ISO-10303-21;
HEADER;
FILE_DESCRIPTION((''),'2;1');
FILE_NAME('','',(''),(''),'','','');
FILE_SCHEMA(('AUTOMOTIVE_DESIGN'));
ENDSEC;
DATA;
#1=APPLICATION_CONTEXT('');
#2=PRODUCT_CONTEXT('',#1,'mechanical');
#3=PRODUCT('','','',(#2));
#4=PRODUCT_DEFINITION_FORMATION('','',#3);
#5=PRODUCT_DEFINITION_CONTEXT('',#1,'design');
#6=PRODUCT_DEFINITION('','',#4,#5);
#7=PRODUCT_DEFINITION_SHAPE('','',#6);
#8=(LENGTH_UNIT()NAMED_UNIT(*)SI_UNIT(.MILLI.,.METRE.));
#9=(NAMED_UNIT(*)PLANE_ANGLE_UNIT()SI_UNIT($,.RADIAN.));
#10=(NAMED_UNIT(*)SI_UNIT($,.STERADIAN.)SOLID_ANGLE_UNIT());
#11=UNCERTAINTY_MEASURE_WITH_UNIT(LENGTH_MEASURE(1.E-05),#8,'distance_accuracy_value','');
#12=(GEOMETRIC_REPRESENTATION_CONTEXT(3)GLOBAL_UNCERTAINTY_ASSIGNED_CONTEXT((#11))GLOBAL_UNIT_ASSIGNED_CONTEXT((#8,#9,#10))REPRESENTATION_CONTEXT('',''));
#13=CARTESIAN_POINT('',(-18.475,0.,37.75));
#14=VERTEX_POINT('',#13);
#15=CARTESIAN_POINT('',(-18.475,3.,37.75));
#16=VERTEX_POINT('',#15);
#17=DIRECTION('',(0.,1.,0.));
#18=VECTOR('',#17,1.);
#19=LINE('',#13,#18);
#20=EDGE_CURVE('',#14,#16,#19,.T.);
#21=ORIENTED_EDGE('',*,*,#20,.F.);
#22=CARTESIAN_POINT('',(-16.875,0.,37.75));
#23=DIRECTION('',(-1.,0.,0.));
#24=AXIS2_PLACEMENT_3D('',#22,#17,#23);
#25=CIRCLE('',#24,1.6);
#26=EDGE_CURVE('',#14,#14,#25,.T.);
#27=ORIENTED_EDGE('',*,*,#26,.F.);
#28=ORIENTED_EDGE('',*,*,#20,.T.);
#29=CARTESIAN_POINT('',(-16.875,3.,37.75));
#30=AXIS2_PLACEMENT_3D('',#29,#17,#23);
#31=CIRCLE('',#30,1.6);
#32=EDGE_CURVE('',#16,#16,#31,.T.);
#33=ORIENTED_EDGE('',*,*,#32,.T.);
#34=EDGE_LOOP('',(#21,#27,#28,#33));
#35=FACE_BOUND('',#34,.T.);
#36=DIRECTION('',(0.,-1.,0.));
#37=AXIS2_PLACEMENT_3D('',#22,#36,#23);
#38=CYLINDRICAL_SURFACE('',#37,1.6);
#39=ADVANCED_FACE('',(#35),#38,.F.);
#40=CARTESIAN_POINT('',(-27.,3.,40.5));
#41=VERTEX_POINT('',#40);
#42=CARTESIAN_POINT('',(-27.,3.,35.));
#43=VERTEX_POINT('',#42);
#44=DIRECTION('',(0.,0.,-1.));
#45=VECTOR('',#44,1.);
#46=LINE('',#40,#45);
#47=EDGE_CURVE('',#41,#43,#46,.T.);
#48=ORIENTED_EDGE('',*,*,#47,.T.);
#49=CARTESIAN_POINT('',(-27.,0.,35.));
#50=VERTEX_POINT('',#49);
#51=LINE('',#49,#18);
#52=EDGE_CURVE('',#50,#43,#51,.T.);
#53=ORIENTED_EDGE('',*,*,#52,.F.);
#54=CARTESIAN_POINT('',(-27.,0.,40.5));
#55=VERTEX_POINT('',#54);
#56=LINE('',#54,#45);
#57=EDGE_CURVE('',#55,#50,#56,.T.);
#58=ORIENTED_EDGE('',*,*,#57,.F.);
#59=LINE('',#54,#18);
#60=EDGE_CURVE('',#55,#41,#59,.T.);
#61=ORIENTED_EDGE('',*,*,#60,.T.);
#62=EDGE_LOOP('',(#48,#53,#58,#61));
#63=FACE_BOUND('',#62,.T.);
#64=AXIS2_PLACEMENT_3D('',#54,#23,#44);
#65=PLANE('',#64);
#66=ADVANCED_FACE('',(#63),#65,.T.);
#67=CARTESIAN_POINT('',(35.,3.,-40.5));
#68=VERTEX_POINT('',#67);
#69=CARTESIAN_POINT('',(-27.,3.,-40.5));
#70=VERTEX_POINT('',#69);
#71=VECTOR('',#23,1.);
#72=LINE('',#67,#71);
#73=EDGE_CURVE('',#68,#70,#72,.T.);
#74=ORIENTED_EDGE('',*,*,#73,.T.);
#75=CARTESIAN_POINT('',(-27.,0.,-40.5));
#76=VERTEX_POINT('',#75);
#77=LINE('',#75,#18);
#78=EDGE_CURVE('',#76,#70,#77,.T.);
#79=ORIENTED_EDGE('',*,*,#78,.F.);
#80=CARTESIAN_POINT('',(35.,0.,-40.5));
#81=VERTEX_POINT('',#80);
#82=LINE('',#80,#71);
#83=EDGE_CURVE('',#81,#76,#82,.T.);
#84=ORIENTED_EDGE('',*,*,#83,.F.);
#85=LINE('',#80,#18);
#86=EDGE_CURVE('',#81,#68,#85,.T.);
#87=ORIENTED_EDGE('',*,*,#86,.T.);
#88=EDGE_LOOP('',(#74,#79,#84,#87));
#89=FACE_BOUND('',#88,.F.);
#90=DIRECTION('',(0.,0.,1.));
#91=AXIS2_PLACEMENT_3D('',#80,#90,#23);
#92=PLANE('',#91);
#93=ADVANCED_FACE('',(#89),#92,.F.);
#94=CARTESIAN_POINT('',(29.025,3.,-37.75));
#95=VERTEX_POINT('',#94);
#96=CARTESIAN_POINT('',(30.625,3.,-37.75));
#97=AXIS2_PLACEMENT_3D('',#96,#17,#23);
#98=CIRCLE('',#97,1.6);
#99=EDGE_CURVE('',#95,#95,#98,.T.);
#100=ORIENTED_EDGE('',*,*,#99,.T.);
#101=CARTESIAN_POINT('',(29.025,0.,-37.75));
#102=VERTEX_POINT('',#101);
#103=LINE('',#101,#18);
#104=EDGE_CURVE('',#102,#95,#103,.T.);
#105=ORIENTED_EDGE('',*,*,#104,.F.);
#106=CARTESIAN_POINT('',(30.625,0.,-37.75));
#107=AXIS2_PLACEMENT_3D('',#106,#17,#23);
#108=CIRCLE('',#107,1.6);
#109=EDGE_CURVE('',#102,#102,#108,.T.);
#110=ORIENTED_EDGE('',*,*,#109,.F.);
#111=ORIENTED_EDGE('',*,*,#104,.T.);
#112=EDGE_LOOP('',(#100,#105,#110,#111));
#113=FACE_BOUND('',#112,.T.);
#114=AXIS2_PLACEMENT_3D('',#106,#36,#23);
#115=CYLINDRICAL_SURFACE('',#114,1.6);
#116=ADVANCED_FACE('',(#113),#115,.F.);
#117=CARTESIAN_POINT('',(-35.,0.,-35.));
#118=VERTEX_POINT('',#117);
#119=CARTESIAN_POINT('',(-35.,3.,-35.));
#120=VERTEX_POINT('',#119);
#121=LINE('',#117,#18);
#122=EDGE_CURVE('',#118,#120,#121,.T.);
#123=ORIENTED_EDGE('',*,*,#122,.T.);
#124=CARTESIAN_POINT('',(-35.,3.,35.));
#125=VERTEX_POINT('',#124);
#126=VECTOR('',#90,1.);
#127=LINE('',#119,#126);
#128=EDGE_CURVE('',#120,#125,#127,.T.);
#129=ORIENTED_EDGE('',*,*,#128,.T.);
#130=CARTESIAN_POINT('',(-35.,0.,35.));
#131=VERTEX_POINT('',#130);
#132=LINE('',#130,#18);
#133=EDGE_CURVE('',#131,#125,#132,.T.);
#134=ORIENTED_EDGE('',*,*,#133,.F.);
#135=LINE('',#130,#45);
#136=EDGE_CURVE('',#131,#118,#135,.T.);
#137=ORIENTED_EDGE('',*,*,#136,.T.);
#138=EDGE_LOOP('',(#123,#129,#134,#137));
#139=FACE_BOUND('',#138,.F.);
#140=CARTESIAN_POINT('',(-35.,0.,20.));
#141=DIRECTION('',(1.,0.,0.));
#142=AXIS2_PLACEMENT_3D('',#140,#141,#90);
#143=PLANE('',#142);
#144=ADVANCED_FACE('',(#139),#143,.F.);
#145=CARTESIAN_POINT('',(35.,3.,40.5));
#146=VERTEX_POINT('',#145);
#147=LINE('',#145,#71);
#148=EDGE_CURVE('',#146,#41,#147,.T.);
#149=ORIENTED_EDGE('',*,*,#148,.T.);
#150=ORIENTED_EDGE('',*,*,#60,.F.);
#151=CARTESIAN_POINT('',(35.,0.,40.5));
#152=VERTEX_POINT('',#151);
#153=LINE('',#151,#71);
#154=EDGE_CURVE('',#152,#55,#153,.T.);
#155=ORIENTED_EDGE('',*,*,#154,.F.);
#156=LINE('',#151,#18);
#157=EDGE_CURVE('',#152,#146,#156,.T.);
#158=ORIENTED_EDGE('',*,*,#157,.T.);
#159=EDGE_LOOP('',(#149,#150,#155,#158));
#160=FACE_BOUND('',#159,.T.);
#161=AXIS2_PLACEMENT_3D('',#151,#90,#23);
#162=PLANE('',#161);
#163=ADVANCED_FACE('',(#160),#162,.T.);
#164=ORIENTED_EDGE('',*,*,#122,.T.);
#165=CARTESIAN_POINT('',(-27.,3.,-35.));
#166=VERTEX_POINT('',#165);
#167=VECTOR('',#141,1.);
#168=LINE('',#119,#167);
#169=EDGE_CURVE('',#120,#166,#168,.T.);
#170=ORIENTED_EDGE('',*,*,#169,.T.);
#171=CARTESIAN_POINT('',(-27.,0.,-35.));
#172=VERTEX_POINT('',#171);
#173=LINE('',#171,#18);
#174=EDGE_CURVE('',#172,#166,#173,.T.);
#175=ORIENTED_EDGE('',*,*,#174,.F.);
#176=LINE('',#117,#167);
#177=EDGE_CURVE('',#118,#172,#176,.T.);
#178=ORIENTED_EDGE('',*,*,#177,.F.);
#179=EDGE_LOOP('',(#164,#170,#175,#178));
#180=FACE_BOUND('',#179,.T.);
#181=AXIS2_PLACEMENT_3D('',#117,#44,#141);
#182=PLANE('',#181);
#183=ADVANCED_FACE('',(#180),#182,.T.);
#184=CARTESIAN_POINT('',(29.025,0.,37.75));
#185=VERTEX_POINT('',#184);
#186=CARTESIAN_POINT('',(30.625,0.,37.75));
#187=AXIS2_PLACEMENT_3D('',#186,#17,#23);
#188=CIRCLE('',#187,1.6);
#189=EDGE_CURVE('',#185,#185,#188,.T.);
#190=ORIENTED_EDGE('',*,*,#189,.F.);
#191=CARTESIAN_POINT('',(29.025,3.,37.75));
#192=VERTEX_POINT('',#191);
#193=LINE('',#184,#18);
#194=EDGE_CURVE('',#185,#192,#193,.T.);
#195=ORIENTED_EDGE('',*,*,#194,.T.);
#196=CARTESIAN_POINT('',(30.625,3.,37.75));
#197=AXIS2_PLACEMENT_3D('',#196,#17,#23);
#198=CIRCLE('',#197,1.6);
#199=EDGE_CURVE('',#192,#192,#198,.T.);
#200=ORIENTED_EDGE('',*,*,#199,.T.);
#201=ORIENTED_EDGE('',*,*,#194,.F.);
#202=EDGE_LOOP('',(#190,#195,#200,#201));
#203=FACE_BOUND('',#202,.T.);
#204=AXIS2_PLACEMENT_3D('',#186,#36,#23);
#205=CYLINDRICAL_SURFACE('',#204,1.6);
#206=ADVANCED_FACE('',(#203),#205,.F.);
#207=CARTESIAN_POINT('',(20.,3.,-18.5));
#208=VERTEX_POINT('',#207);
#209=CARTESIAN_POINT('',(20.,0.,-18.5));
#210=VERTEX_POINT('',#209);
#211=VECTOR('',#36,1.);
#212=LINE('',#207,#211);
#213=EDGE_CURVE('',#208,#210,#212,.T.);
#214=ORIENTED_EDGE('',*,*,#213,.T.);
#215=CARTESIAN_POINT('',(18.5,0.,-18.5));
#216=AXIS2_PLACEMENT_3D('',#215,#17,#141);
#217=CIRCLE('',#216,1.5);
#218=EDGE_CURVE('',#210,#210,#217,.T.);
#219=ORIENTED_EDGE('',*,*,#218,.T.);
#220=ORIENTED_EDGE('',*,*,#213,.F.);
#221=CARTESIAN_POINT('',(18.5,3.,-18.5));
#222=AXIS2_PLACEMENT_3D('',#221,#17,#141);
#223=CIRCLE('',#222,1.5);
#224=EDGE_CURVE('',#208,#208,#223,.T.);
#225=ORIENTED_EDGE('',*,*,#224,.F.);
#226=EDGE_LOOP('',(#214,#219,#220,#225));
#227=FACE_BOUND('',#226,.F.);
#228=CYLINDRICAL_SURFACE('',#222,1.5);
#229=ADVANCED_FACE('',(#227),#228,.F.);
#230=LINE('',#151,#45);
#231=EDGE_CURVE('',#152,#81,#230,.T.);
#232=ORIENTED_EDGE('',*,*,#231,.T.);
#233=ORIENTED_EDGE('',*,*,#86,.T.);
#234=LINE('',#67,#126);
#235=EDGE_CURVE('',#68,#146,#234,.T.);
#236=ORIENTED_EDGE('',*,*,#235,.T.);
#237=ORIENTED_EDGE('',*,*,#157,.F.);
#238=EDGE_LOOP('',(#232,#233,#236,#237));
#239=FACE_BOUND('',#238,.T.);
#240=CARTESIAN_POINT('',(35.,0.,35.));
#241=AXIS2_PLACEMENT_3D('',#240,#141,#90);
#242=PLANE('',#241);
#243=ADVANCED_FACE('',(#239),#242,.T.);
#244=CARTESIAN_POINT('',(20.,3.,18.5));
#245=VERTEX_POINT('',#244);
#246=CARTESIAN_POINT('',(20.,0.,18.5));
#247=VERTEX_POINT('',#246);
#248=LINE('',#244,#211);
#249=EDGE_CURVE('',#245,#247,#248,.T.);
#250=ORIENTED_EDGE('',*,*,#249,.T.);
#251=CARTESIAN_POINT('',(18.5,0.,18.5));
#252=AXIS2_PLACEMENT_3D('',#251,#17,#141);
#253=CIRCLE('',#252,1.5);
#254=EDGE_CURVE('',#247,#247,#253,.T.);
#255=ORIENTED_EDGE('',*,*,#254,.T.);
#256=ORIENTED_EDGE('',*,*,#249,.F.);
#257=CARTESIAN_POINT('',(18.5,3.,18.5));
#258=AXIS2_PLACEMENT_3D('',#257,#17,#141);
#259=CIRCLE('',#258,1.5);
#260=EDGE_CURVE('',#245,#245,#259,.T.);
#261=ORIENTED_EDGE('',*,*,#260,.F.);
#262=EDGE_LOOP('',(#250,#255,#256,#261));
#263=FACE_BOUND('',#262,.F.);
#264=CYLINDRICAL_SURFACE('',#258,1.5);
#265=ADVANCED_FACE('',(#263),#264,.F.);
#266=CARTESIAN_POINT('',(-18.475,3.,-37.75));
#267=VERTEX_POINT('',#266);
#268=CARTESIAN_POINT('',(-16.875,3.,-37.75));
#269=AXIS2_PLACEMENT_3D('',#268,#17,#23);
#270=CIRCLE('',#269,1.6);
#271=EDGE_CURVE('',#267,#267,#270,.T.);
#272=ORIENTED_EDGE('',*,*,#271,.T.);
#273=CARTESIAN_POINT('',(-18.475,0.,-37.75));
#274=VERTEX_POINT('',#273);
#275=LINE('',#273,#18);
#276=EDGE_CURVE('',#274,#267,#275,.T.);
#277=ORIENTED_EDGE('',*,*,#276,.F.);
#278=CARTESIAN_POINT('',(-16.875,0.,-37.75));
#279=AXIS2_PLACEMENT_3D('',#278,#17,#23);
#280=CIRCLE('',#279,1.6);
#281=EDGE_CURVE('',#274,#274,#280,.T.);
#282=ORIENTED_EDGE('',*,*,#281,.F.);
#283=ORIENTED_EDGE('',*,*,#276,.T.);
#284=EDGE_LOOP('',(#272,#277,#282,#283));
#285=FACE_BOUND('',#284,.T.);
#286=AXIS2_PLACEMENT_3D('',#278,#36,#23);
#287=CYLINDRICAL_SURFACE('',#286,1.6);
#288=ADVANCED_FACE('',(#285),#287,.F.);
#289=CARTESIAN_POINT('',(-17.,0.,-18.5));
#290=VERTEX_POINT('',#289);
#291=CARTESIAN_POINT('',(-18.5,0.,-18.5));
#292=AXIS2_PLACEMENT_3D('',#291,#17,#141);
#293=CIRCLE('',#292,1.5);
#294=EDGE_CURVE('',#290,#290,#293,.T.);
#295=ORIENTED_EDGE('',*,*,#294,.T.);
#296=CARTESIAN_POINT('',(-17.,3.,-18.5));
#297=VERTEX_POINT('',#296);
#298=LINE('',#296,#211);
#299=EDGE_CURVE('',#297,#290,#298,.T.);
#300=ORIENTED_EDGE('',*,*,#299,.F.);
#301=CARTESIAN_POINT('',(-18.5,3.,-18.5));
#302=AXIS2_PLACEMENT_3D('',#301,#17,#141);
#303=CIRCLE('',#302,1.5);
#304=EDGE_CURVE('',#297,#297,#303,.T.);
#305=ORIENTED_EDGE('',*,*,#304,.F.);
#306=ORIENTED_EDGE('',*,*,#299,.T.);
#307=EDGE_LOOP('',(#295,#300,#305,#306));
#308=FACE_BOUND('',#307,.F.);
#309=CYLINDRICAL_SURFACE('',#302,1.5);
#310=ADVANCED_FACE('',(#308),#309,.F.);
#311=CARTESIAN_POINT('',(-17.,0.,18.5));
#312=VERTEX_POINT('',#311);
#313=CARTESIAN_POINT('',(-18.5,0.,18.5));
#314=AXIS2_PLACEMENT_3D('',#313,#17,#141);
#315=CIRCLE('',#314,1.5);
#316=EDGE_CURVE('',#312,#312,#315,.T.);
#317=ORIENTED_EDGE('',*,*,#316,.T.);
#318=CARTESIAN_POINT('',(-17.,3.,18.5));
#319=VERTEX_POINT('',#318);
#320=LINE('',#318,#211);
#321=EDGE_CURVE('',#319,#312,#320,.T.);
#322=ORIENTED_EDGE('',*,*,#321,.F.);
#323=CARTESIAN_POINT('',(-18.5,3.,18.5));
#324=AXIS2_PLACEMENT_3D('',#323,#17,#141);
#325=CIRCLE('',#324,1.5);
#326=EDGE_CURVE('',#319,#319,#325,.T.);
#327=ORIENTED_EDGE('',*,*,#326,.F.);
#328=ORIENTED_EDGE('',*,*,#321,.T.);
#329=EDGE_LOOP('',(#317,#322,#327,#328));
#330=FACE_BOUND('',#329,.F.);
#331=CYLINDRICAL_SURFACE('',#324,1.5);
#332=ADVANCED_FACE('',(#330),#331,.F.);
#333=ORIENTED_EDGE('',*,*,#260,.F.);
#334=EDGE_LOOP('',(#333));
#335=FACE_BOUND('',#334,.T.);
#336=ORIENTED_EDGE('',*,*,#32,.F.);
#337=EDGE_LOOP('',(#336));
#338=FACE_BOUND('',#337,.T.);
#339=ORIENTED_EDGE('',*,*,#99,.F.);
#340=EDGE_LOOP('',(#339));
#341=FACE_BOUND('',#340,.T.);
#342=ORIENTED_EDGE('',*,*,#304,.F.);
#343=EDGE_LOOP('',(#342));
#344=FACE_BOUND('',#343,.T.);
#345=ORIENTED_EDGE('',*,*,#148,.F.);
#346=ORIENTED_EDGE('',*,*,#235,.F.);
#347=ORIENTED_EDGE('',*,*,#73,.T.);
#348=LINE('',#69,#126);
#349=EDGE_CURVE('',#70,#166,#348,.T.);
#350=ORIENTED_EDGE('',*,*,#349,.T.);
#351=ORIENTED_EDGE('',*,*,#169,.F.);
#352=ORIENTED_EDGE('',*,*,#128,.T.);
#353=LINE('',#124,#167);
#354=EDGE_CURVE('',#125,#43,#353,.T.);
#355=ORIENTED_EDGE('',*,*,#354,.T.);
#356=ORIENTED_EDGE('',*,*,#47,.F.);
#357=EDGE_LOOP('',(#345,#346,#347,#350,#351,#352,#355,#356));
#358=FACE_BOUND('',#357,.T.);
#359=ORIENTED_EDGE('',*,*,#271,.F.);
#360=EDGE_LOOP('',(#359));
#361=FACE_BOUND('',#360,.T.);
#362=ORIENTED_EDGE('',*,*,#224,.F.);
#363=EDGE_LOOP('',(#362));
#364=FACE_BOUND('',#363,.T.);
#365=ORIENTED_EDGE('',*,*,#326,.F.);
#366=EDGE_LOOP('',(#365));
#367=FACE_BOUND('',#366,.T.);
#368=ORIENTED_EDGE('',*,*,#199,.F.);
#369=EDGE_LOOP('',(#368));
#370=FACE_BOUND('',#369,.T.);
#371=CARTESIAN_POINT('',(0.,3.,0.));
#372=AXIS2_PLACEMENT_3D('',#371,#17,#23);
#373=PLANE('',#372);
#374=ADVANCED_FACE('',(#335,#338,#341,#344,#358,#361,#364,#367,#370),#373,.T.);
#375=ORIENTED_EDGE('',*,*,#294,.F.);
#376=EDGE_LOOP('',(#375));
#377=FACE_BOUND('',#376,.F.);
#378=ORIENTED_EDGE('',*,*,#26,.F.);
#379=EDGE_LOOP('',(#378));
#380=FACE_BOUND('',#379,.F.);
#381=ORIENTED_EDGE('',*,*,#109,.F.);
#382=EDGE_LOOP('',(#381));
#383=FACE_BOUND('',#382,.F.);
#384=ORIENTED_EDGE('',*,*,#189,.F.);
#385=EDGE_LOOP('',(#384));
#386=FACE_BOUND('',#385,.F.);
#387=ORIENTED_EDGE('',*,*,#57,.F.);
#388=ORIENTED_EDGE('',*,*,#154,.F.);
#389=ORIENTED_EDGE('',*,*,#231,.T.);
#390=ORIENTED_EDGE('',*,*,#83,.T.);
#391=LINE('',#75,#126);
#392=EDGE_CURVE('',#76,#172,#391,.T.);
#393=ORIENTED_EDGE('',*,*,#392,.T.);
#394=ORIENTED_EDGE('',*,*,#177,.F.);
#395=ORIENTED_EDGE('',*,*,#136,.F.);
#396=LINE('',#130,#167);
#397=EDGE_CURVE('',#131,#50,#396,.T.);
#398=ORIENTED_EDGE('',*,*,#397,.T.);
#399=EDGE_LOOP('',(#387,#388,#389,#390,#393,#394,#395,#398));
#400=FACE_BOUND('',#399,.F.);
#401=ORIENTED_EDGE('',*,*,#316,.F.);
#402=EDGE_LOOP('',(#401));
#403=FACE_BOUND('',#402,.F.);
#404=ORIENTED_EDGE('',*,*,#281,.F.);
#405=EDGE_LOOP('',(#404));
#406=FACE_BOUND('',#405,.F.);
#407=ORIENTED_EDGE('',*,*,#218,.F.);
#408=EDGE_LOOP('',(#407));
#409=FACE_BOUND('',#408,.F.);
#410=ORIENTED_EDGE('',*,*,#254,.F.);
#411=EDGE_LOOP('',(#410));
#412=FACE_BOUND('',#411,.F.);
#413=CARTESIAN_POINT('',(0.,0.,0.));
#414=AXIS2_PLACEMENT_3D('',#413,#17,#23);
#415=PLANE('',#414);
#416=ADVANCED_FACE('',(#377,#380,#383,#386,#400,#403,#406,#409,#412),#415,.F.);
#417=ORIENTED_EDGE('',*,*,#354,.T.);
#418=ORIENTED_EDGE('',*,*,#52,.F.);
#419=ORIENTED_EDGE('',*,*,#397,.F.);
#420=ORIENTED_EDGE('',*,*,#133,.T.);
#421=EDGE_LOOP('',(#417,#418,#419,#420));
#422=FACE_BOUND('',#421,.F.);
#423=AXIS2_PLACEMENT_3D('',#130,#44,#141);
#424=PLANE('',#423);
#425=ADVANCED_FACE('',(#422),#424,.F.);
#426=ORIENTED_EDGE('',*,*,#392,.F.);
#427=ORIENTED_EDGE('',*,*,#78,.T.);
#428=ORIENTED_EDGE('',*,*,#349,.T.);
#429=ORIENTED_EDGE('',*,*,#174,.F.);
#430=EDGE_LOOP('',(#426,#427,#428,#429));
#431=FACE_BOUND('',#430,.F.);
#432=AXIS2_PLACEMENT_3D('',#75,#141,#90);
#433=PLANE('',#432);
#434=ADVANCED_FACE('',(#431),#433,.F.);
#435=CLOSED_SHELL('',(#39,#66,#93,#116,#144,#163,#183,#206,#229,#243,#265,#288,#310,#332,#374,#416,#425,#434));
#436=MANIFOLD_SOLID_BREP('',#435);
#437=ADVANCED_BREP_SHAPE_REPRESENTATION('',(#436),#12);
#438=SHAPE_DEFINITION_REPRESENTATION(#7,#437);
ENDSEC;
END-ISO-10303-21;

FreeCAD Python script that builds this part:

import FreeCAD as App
import Part
import Sketcher

doc = App.newDocument("Part")
params = doc.addObject("Spreadsheet::Sheet", "Params")
for row, (alias, value) in enumerate([
    ("sketch1_diameter", "3.2 mm"),
    ("sketch1_width", "62 mm"),
    ("sketch1_width2", "8 mm"),
    ("sketch1_height", "81 mm"),
    ("sketch1_height2", "70 mm"),
    ("pad1_length", "3 mm"),
    ("sketch2_diameter", "3 mm"),
    ("pocket1_length", "10 mm"),
], start=1):
    params.set(f"A{row}", alias)
    params.set(f"B{row}", "=" + value)
    params.setAlias(f"B{row}", alias)

body = doc.addObject("PartDesign::Body", "Body")

sketch1 = doc.addObject("Sketcher::SketchObject", "Sketch")
body.addObject(sketch1)
sketch1.AttachmentSupport = (doc.XZ_Plane, [""])
sketch1.MapMode = "FlatFace"
sketch1.addGeometry([
    Part.LineSegment(App.Vector(-27, 40.5, 0), App.Vector(35, 40.5, 0)),
    Part.LineSegment(App.Vector(35, 40.5, 0), App.Vector(35, -40.5, 0)),
    Part.LineSegment(App.Vector(35, -40.5, 0), App.Vector(-27, -40.5, 0)),
    Part.LineSegment(App.Vector(-27, -40.5, 0), App.Vector(-27, -35, 0)),
    Part.LineSegment(App.Vector(-27, -35, 0), App.Vector(-35, -35, 0)),
    Part.LineSegment(App.Vector(-35, -35, 0), App.Vector(-35, 35, 0)),
    Part.LineSegment(App.Vector(-35, 35, 0), App.Vector(-27, 35, 0)),
    Part.LineSegment(App.Vector(-27, 35, 0), App.Vector(-27, 40.5, 0)),
    Part.Circle(App.Vector(30.6, 37.8, 0), App.Vector(0, 0, 1), 1.6),
    Part.Circle(App.Vector(-16.9, 37.8, 0), App.Vector(0, 0, 1), 1.6),
    Part.Circle(App.Vector(-16.9, -37.8, 0), App.Vector(0, 0, 1), 1.6),
    Part.Circle(App.Vector(30.6, -37.8, 0), App.Vector(0, 0, 1), 1.6),
], False)
sketch1.addConstraint([
    Sketcher.Constraint("Coincident", 0, 2, 1, 1),
    Sketcher.Constraint("Coincident", 1, 2, 2, 1),
    Sketcher.Constraint("Coincident", 2, 2, 3, 1),
    Sketcher.Constraint("Coincident", 3, 2, 4, 1),
    Sketcher.Constraint("Coincident", 4, 2, 5, 1),
    Sketcher.Constraint("Coincident", 5, 2, 6, 1),
    Sketcher.Constraint("Coincident", 6, 2, 7, 1),
    Sketcher.Constraint("Coincident", 7, 2, 0, 1),
    Sketcher.Constraint("Horizontal", 0),
    Sketcher.Constraint("Vertical", 1),
    Sketcher.Constraint("Horizontal", 2),
    Sketcher.Constraint("Vertical", 3),
    Sketcher.Constraint("Horizontal", 4),
    Sketcher.Constraint("Vertical", 5),
    Sketcher.Constraint("Horizontal", 6),
    Sketcher.Constraint("Vertical", 7),
    Sketcher.Constraint("Equal", 8, 9),
    Sketcher.Constraint("Equal", 9, 10),
    Sketcher.Constraint("Equal", 10, 11),
    Sketcher.Constraint("Symmetric", 9, 3, 10, 3, -1),
    Sketcher.Constraint("Symmetric", 8, 3, 11, 3, -1),
    Sketcher.Constraint("Symmetric", 3, 2, 6, 2, -1),
    Sketcher.Constraint("Horizontal", 8, 3, 9, 3),
    Sketcher.Constraint("Equal", 3, 7),
    Sketcher.Constraint("Diameter", 8, 3.2),
    Sketcher.Constraint("DistanceX", 0, 1, 0, 2, 62.0),
    Sketcher.Constraint("DistanceX", 4, 2, 4, 1, 8.0),
    Sketcher.Constraint("DistanceY", 1, 2, 1, 1, 81.0),
    Sketcher.Constraint("DistanceY", 5, 1, 5, 2, 70.0),
    Sketcher.Constraint("DistanceX", -1, 1, 0, 2, 35.0),
    Sketcher.Constraint("DistanceX", 9, 3, 8, 3, 47.5),
    Sketcher.Constraint("DistanceY", 10, 3, 9, 3, 75.5),
    Sketcher.Constraint("DistanceX", -1, 1, 8, 3, 30.625),
])
sketch1.setExpression("Constraints[24]", "Params.sketch1_diameter")
sketch1.setExpression("Constraints[25]", "Params.sketch1_width")
sketch1.setExpression("Constraints[26]", "Params.sketch1_width2")
sketch1.setExpression("Constraints[27]", "Params.sketch1_height")
sketch1.setExpression("Constraints[28]", "Params.sketch1_height2")
pad1 = doc.addObject("PartDesign::Pad", "Pad")
body.addObject(pad1)
pad1.Profile = sketch1
pad1.setExpression("Length", "Params.pad1_length")
pad1.Reversed = True

sketch2 = doc.addObject("Sketcher::SketchObject", "Sketch001")
body.addObject(sketch2)
sketch2.AttachmentSupport = (doc.XZ_Plane, [""])
sketch2.MapMode = "FlatFace"
sketch2.AttachmentOffset = App.Placement(App.Vector(0, 0, -3), App.Rotation())
sketch2.addGeometry([
    Part.Circle(App.Vector(18.5, 18.5, 0), App.Vector(0, 0, 1), 1.5),
    Part.Circle(App.Vector(-18.5, 18.5, 0), App.Vector(0, 0, 1), 1.5),
    Part.Circle(App.Vector(-18.5, -18.5, 0), App.Vector(0, 0, 1), 1.5),
    Part.Circle(App.Vector(18.5, -18.5, 0), App.Vector(0, 0, 1), 1.5),
], False)
sketch2.addConstraint([
    Sketcher.Constraint("Equal", 0, 1),
    Sketcher.Constraint("Equal", 1, 2),
    Sketcher.Constraint("Equal", 2, 3),
    Sketcher.Constraint("Symmetric", 0, 3, 2, 3, -1, 1),
    Sketcher.Constraint("Symmetric", 1, 3, 3, 3, -1, 1),
    Sketcher.Constraint("Symmetric", 0, 3, 1, 3, -2),
    Sketcher.Constraint("Diameter", 0, 3.0),
    Sketcher.Constraint("DistanceX", 1, 3, 0, 3, 37.0),
    Sketcher.Constraint("DistanceY", 2, 3, 1, 3, 37.0),
])
sketch2.setExpression("Constraints[6]", "Params.sketch2_diameter")
pocket1 = doc.addObject("PartDesign::Pocket", "Pocket")
body.addObject(pocket1)
pocket1.Profile = sketch2
pocket1.setExpression("Length", "Params.pocket1_length")
pocket1.Reversed = True

doc.recompute()
